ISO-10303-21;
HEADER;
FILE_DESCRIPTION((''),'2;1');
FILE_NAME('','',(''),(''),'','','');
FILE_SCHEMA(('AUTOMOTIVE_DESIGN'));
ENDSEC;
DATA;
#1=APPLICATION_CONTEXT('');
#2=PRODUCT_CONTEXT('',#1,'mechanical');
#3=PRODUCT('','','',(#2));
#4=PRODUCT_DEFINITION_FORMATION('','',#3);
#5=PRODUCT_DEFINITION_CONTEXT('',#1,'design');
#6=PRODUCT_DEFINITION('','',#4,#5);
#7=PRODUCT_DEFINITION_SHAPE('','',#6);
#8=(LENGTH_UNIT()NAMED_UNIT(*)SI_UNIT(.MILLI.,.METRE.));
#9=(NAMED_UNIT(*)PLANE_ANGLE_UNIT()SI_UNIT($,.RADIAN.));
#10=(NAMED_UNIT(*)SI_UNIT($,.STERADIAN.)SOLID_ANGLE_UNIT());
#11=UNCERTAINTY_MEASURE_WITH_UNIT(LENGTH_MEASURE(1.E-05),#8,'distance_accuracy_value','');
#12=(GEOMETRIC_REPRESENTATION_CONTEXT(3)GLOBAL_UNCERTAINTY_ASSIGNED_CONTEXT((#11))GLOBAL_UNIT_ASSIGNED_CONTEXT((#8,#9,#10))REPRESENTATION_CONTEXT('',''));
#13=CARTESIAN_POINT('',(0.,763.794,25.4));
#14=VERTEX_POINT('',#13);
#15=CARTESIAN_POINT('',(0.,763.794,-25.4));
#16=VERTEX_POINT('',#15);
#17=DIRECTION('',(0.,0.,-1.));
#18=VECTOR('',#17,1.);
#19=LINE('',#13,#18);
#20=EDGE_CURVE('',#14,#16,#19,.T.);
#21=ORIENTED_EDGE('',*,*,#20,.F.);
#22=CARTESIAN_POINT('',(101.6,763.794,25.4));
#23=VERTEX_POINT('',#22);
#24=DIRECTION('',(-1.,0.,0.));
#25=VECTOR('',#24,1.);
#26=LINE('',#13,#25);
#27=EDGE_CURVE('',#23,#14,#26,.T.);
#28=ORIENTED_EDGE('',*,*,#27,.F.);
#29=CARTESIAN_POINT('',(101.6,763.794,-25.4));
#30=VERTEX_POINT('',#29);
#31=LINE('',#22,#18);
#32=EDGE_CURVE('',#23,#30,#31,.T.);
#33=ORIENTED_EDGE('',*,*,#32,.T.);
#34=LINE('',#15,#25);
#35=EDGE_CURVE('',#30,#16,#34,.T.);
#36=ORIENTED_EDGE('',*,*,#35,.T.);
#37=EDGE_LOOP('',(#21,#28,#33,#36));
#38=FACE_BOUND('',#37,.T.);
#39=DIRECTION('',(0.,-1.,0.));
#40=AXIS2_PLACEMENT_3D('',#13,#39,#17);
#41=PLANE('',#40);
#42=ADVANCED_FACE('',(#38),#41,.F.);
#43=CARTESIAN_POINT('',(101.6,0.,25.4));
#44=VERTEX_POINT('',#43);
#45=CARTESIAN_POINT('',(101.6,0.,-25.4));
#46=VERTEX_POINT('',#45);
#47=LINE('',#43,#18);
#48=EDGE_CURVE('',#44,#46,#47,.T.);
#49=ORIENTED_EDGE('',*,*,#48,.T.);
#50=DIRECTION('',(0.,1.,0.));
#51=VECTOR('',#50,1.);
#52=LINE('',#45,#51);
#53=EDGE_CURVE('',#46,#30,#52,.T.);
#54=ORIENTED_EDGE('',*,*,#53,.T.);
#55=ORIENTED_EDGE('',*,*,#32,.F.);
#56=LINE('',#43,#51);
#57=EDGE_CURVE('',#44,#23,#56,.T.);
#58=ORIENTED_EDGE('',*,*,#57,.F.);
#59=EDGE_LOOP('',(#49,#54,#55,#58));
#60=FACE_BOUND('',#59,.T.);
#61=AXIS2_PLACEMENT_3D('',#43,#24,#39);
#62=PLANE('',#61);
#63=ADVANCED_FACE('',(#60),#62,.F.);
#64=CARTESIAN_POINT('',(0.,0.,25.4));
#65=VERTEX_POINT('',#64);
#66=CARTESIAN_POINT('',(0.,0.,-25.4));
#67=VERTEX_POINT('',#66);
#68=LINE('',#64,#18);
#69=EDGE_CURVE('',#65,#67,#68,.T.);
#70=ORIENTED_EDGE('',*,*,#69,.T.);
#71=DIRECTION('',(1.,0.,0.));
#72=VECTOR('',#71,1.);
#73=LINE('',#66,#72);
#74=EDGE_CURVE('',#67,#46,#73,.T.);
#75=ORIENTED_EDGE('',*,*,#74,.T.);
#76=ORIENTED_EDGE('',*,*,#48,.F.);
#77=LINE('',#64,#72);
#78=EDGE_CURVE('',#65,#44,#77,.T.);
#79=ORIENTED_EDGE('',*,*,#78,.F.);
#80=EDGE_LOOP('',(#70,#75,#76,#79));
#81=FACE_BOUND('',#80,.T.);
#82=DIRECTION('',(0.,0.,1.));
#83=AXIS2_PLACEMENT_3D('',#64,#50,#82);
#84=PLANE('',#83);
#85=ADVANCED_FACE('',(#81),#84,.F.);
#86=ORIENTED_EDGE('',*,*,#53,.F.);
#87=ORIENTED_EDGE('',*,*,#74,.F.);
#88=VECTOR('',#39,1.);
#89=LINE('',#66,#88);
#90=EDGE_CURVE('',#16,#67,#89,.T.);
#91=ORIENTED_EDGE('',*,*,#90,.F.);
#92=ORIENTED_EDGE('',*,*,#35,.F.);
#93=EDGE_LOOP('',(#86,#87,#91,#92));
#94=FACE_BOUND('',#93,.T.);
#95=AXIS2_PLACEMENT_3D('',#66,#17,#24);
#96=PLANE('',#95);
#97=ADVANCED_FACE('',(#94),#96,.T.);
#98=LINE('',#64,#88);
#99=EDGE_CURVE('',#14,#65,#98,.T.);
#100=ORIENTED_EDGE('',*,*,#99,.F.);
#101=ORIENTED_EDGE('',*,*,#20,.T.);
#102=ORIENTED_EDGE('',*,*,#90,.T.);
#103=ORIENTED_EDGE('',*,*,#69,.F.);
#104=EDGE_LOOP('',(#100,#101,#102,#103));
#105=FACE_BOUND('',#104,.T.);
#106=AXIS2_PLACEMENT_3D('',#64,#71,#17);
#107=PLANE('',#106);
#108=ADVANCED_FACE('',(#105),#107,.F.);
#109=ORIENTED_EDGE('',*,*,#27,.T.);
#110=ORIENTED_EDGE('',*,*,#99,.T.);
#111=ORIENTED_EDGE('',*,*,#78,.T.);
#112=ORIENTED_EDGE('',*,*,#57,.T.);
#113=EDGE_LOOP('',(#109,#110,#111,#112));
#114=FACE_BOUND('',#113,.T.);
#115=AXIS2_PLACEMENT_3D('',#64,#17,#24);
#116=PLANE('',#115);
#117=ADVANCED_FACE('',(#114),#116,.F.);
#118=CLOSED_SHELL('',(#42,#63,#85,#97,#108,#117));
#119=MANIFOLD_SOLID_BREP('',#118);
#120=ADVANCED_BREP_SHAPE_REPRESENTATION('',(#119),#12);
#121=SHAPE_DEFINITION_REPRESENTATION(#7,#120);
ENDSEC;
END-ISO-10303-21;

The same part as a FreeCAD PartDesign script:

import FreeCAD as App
import Part
import Sketcher
Q = App.Units.Quantity


def add_polygon(sketch, points):
    """Adds a closed chain of lines whose ends are joined by coincident constraints."""
    first, n = sketch.GeometryCount, len(points)
    for a, b in zip(points, points[1:] + points[:1]):
        sketch.addGeometry(Part.LineSegment(App.Vector(*a, 0), App.Vector(*b, 0)), False)
    for i in range(n):
        sketch.addConstraint(Sketcher.Constraint("Coincident", first + i, 2, first + (i + 1) % n, 1))

doc = App.newDocument("Part")
body = doc.addObject("PartDesign::Body", "Body")

# Sketch on XY plane
sketch1 = body.newObject("Sketcher::SketchObject", "Sketch")
sketch1.AttachmentSupport = (doc.getObject("XY_Plane"), [""])
sketch1.MapMode = "FlatFace"
add_polygon(sketch1, [(0, 764), (0, 0), (102, 0), (102, 764)])  # lines 0-3
sketch1.addConstraint(Sketcher.Constraint("Vertical", 0))
sketch1.addConstraint(Sketcher.Constraint("Horizontal", 1))
sketch1.addConstraint(Sketcher.Constraint("Vertical", 2))
sketch1.addConstraint(Sketcher.Constraint("Horizontal", 3))
sketch1.addConstraint(Sketcher.Constraint("Coincident", 0, 2, -1, 1))
sketch1.addConstraint(Sketcher.Constraint("DistanceX", 1, 1, 1, 2, Q("4 in")))
sketch1.addConstraint(Sketcher.Constraint("DistanceY", 0, 2, 0, 1, Q("763.794 mm")))
pad1 = body.newObject("PartDesign::Pad", "Pad")
pad1.Profile = sketch1
pad1.Length = Q("2 in")
pad1.Midplane = True

doc.recompute()
